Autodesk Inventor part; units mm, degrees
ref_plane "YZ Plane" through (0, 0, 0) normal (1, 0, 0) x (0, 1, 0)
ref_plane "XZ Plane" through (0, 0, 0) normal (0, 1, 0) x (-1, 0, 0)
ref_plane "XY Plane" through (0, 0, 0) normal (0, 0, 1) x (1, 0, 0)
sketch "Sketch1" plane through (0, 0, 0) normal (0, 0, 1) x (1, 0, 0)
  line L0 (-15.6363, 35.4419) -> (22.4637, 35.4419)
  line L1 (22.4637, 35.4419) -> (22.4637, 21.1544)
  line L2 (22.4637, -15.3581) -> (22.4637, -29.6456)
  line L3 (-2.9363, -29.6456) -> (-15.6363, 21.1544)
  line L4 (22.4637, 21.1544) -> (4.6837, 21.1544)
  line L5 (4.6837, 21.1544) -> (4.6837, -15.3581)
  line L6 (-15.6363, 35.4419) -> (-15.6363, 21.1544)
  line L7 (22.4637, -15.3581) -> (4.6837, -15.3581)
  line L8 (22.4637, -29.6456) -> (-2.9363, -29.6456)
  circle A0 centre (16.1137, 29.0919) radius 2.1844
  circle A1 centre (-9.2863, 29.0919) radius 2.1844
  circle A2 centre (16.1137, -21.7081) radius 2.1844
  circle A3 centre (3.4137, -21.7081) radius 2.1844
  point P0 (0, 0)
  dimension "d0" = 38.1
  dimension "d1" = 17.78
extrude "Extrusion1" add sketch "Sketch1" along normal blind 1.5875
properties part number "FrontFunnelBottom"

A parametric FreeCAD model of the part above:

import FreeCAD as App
import Part
import Sketcher

V = App.Vector
Q = App.Units.Quantity


def add_polygon(sketch, points):
    """Adds a closed chain of lines whose ends are joined by coincident constraints."""
    first, n = sketch.GeometryCount, len(points)
    for a, b in zip(points, points[1:] + points[:1]):
        sketch.addGeometry(Part.LineSegment(App.Vector(*a, 0), App.Vector(*b, 0)), False)
    for i in range(n):
        sketch.addConstraint(Sketcher.Constraint("Coincident", first + i, 2, first + (i + 1) % n, 1))

doc = App.newDocument("Part")
params = doc.addObject("Spreadsheet::Sheet", "Params")
for row, (alias, value) in enumerate([
    ("sketch1_width", "1.5 in"),
    ("sketch1_width2", "0.7 in"),
    ("sketch1_width3", "1 in"),
    ("sketch1_diameter", "0.172 in"),
    ("sketch1_height", "0.5625 in"),
    ("pad1_length", "0.0625 in"),
], start=1):
    params.set(f"A{row}", alias)
    params.set(f"B{row}", "=" + value)
    params.setAlias(f"B{row}", alias)

body = doc.addObject("PartDesign::Body", "Body")

sketch1 = body.newObject("Sketcher::SketchObject", "Sketch")
sketch1.AttachmentSupport = (doc.getObject("XY_Plane"), [""])
sketch1.MapMode = "FlatFace"
add_polygon(sketch1, [(22.4637, 35.4419), (-15.6363, 35.4419), (-15.6363, 21.1544), (-2.9363, -29.6456), (22.4637, -29.6456), (22.4637, -15.3581), (4.6837, -15.3581), (4.6837, 21.1544), (22.4637, 21.1544)])
sketch1.addGeometry(Part.Circle(V(3.4137, -21.7081, 0), V(0, 0, 1), 2.1844), False)
sketch1.addGeometry(Part.Circle(V(16.1137, -21.7081, 0), V(0, 0, 1), 2.1844), False)
sketch1.addGeometry(Part.Circle(V(-9.2863, 29.0919, 0), V(0, 0, 1), 2.1844), False)
sketch1.addGeometry(Part.Circle(V(16.1137, 29.0919, 0), V(0, 0, 1), 2.1844), False)
sketch1.addConstraint(Sketcher.Constraint("Horizontal", 0))
sketch1.addConstraint(Sketcher.Constraint("Vertical", 1))
sketch1.addConstraint(Sketcher.Constraint("Horizontal", 3))
sketch1.addConstraint(Sketcher.Constraint("Vertical", 4))
sketch1.addConstraint(Sketcher.Constraint("Horizontal", 5))
sketch1.addConstraint(Sketcher.Constraint("Vertical", 6))
sketch1.addConstraint(Sketcher.Constraint("Horizontal", 7))
sketch1.addConstraint(Sketcher.Constraint("Vertical", 8))
sketch1.addConstraint(Sketcher.Constraint("Equal", 9, 10))
sketch1.addConstraint(Sketcher.Constraint("Equal", 10, 11))
sketch1.addConstraint(Sketcher.Constraint("Equal", 11, 12))
sketch1.addConstraint(Sketcher.Constraint("Horizontal", 9, 3, 10, 3))
sketch1.addConstraint(Sketcher.Constraint("Horizontal", 11, 3, 12, 3))
sketch1.addConstraint(Sketcher.Constraint("Horizontal", 1, 2, 6, 2))
sketch1.addConstraint(Sketcher.Constraint("Vertical", 10, 3, 12, 3))
sketch1.addConstraint(Sketcher.Constraint("Vertical", 4, 2, 7, 2))
sketch1.addConstraint(Sketcher.Constraint("Equal", 1, 4))
sketch1.addConstraint(Sketcher.Constraint("DistanceX", 0, 2, 0, 1, Q("1.5 in")))
sketch1.addConstraint(Sketcher.Constraint("DistanceX", 5, 2, 5, 1, Q("0.7 in")))
sketch1.addConstraint(Sketcher.Constraint("DistanceX", 3, 1, 3, 2, Q("1 in")))
sketch1.addConstraint(Sketcher.Constraint("Diameter", 9, Q("0.172 in")))
sketch1.addConstraint(Sketcher.Constraint("DistanceY", 9, 3, 11, 3, Q("2 in")))
sketch1.addConstraint(Sketcher.Constraint("DistanceX", 11, 3, 10, 3, Q("1 in")))
sketch1.addConstraint(Sketcher.Constraint("DistanceY", 2, 2, 1, 2, Q("2 in")))
sketch1.addConstraint(Sketcher.Constraint("DistanceX", 9, 3, 10, 3, Q("0.5 in")))
sketch1.addConstraint(Sketcher.Constraint("DistanceY", 1, 2, 1, 1, Q("0.5625 in")))
sketch1.addConstraint(Sketcher.Constraint("DistanceX", 0, 2, 11, 3, Q("0.25 in")))
sketch1.addConstraint(Sketcher.Constraint("DistanceY", 11, 3, 0, 2, Q("0.25 in")))
sketch1.addConstraint(Sketcher.Constraint("DistanceX", -1, 1, 9, 3, Q("0.1344 in")))
sketch1.addConstraint(Sketcher.Constraint("DistanceY", 9, 3, -1, 1, Q("21.708 mm")))
sketch1.setExpression("Constraints[26]", "Params.sketch1_width")
sketch1.setExpression("Constraints[27]", "Params.sketch1_width2")
sketch1.setExpression("Constraints[28]", "Params.sketch1_width3")
sketch1.setExpression("Constraints[29]", "Params.sketch1_diameter")
sketch1.setExpression("Constraints[34]", "Params.sketch1_height")
pad1 = body.newObject("PartDesign::Pad", "Pad")
pad1.Profile = sketch1
pad1.setExpression("Length", "Params.pad1_length")

doc.recompute()
